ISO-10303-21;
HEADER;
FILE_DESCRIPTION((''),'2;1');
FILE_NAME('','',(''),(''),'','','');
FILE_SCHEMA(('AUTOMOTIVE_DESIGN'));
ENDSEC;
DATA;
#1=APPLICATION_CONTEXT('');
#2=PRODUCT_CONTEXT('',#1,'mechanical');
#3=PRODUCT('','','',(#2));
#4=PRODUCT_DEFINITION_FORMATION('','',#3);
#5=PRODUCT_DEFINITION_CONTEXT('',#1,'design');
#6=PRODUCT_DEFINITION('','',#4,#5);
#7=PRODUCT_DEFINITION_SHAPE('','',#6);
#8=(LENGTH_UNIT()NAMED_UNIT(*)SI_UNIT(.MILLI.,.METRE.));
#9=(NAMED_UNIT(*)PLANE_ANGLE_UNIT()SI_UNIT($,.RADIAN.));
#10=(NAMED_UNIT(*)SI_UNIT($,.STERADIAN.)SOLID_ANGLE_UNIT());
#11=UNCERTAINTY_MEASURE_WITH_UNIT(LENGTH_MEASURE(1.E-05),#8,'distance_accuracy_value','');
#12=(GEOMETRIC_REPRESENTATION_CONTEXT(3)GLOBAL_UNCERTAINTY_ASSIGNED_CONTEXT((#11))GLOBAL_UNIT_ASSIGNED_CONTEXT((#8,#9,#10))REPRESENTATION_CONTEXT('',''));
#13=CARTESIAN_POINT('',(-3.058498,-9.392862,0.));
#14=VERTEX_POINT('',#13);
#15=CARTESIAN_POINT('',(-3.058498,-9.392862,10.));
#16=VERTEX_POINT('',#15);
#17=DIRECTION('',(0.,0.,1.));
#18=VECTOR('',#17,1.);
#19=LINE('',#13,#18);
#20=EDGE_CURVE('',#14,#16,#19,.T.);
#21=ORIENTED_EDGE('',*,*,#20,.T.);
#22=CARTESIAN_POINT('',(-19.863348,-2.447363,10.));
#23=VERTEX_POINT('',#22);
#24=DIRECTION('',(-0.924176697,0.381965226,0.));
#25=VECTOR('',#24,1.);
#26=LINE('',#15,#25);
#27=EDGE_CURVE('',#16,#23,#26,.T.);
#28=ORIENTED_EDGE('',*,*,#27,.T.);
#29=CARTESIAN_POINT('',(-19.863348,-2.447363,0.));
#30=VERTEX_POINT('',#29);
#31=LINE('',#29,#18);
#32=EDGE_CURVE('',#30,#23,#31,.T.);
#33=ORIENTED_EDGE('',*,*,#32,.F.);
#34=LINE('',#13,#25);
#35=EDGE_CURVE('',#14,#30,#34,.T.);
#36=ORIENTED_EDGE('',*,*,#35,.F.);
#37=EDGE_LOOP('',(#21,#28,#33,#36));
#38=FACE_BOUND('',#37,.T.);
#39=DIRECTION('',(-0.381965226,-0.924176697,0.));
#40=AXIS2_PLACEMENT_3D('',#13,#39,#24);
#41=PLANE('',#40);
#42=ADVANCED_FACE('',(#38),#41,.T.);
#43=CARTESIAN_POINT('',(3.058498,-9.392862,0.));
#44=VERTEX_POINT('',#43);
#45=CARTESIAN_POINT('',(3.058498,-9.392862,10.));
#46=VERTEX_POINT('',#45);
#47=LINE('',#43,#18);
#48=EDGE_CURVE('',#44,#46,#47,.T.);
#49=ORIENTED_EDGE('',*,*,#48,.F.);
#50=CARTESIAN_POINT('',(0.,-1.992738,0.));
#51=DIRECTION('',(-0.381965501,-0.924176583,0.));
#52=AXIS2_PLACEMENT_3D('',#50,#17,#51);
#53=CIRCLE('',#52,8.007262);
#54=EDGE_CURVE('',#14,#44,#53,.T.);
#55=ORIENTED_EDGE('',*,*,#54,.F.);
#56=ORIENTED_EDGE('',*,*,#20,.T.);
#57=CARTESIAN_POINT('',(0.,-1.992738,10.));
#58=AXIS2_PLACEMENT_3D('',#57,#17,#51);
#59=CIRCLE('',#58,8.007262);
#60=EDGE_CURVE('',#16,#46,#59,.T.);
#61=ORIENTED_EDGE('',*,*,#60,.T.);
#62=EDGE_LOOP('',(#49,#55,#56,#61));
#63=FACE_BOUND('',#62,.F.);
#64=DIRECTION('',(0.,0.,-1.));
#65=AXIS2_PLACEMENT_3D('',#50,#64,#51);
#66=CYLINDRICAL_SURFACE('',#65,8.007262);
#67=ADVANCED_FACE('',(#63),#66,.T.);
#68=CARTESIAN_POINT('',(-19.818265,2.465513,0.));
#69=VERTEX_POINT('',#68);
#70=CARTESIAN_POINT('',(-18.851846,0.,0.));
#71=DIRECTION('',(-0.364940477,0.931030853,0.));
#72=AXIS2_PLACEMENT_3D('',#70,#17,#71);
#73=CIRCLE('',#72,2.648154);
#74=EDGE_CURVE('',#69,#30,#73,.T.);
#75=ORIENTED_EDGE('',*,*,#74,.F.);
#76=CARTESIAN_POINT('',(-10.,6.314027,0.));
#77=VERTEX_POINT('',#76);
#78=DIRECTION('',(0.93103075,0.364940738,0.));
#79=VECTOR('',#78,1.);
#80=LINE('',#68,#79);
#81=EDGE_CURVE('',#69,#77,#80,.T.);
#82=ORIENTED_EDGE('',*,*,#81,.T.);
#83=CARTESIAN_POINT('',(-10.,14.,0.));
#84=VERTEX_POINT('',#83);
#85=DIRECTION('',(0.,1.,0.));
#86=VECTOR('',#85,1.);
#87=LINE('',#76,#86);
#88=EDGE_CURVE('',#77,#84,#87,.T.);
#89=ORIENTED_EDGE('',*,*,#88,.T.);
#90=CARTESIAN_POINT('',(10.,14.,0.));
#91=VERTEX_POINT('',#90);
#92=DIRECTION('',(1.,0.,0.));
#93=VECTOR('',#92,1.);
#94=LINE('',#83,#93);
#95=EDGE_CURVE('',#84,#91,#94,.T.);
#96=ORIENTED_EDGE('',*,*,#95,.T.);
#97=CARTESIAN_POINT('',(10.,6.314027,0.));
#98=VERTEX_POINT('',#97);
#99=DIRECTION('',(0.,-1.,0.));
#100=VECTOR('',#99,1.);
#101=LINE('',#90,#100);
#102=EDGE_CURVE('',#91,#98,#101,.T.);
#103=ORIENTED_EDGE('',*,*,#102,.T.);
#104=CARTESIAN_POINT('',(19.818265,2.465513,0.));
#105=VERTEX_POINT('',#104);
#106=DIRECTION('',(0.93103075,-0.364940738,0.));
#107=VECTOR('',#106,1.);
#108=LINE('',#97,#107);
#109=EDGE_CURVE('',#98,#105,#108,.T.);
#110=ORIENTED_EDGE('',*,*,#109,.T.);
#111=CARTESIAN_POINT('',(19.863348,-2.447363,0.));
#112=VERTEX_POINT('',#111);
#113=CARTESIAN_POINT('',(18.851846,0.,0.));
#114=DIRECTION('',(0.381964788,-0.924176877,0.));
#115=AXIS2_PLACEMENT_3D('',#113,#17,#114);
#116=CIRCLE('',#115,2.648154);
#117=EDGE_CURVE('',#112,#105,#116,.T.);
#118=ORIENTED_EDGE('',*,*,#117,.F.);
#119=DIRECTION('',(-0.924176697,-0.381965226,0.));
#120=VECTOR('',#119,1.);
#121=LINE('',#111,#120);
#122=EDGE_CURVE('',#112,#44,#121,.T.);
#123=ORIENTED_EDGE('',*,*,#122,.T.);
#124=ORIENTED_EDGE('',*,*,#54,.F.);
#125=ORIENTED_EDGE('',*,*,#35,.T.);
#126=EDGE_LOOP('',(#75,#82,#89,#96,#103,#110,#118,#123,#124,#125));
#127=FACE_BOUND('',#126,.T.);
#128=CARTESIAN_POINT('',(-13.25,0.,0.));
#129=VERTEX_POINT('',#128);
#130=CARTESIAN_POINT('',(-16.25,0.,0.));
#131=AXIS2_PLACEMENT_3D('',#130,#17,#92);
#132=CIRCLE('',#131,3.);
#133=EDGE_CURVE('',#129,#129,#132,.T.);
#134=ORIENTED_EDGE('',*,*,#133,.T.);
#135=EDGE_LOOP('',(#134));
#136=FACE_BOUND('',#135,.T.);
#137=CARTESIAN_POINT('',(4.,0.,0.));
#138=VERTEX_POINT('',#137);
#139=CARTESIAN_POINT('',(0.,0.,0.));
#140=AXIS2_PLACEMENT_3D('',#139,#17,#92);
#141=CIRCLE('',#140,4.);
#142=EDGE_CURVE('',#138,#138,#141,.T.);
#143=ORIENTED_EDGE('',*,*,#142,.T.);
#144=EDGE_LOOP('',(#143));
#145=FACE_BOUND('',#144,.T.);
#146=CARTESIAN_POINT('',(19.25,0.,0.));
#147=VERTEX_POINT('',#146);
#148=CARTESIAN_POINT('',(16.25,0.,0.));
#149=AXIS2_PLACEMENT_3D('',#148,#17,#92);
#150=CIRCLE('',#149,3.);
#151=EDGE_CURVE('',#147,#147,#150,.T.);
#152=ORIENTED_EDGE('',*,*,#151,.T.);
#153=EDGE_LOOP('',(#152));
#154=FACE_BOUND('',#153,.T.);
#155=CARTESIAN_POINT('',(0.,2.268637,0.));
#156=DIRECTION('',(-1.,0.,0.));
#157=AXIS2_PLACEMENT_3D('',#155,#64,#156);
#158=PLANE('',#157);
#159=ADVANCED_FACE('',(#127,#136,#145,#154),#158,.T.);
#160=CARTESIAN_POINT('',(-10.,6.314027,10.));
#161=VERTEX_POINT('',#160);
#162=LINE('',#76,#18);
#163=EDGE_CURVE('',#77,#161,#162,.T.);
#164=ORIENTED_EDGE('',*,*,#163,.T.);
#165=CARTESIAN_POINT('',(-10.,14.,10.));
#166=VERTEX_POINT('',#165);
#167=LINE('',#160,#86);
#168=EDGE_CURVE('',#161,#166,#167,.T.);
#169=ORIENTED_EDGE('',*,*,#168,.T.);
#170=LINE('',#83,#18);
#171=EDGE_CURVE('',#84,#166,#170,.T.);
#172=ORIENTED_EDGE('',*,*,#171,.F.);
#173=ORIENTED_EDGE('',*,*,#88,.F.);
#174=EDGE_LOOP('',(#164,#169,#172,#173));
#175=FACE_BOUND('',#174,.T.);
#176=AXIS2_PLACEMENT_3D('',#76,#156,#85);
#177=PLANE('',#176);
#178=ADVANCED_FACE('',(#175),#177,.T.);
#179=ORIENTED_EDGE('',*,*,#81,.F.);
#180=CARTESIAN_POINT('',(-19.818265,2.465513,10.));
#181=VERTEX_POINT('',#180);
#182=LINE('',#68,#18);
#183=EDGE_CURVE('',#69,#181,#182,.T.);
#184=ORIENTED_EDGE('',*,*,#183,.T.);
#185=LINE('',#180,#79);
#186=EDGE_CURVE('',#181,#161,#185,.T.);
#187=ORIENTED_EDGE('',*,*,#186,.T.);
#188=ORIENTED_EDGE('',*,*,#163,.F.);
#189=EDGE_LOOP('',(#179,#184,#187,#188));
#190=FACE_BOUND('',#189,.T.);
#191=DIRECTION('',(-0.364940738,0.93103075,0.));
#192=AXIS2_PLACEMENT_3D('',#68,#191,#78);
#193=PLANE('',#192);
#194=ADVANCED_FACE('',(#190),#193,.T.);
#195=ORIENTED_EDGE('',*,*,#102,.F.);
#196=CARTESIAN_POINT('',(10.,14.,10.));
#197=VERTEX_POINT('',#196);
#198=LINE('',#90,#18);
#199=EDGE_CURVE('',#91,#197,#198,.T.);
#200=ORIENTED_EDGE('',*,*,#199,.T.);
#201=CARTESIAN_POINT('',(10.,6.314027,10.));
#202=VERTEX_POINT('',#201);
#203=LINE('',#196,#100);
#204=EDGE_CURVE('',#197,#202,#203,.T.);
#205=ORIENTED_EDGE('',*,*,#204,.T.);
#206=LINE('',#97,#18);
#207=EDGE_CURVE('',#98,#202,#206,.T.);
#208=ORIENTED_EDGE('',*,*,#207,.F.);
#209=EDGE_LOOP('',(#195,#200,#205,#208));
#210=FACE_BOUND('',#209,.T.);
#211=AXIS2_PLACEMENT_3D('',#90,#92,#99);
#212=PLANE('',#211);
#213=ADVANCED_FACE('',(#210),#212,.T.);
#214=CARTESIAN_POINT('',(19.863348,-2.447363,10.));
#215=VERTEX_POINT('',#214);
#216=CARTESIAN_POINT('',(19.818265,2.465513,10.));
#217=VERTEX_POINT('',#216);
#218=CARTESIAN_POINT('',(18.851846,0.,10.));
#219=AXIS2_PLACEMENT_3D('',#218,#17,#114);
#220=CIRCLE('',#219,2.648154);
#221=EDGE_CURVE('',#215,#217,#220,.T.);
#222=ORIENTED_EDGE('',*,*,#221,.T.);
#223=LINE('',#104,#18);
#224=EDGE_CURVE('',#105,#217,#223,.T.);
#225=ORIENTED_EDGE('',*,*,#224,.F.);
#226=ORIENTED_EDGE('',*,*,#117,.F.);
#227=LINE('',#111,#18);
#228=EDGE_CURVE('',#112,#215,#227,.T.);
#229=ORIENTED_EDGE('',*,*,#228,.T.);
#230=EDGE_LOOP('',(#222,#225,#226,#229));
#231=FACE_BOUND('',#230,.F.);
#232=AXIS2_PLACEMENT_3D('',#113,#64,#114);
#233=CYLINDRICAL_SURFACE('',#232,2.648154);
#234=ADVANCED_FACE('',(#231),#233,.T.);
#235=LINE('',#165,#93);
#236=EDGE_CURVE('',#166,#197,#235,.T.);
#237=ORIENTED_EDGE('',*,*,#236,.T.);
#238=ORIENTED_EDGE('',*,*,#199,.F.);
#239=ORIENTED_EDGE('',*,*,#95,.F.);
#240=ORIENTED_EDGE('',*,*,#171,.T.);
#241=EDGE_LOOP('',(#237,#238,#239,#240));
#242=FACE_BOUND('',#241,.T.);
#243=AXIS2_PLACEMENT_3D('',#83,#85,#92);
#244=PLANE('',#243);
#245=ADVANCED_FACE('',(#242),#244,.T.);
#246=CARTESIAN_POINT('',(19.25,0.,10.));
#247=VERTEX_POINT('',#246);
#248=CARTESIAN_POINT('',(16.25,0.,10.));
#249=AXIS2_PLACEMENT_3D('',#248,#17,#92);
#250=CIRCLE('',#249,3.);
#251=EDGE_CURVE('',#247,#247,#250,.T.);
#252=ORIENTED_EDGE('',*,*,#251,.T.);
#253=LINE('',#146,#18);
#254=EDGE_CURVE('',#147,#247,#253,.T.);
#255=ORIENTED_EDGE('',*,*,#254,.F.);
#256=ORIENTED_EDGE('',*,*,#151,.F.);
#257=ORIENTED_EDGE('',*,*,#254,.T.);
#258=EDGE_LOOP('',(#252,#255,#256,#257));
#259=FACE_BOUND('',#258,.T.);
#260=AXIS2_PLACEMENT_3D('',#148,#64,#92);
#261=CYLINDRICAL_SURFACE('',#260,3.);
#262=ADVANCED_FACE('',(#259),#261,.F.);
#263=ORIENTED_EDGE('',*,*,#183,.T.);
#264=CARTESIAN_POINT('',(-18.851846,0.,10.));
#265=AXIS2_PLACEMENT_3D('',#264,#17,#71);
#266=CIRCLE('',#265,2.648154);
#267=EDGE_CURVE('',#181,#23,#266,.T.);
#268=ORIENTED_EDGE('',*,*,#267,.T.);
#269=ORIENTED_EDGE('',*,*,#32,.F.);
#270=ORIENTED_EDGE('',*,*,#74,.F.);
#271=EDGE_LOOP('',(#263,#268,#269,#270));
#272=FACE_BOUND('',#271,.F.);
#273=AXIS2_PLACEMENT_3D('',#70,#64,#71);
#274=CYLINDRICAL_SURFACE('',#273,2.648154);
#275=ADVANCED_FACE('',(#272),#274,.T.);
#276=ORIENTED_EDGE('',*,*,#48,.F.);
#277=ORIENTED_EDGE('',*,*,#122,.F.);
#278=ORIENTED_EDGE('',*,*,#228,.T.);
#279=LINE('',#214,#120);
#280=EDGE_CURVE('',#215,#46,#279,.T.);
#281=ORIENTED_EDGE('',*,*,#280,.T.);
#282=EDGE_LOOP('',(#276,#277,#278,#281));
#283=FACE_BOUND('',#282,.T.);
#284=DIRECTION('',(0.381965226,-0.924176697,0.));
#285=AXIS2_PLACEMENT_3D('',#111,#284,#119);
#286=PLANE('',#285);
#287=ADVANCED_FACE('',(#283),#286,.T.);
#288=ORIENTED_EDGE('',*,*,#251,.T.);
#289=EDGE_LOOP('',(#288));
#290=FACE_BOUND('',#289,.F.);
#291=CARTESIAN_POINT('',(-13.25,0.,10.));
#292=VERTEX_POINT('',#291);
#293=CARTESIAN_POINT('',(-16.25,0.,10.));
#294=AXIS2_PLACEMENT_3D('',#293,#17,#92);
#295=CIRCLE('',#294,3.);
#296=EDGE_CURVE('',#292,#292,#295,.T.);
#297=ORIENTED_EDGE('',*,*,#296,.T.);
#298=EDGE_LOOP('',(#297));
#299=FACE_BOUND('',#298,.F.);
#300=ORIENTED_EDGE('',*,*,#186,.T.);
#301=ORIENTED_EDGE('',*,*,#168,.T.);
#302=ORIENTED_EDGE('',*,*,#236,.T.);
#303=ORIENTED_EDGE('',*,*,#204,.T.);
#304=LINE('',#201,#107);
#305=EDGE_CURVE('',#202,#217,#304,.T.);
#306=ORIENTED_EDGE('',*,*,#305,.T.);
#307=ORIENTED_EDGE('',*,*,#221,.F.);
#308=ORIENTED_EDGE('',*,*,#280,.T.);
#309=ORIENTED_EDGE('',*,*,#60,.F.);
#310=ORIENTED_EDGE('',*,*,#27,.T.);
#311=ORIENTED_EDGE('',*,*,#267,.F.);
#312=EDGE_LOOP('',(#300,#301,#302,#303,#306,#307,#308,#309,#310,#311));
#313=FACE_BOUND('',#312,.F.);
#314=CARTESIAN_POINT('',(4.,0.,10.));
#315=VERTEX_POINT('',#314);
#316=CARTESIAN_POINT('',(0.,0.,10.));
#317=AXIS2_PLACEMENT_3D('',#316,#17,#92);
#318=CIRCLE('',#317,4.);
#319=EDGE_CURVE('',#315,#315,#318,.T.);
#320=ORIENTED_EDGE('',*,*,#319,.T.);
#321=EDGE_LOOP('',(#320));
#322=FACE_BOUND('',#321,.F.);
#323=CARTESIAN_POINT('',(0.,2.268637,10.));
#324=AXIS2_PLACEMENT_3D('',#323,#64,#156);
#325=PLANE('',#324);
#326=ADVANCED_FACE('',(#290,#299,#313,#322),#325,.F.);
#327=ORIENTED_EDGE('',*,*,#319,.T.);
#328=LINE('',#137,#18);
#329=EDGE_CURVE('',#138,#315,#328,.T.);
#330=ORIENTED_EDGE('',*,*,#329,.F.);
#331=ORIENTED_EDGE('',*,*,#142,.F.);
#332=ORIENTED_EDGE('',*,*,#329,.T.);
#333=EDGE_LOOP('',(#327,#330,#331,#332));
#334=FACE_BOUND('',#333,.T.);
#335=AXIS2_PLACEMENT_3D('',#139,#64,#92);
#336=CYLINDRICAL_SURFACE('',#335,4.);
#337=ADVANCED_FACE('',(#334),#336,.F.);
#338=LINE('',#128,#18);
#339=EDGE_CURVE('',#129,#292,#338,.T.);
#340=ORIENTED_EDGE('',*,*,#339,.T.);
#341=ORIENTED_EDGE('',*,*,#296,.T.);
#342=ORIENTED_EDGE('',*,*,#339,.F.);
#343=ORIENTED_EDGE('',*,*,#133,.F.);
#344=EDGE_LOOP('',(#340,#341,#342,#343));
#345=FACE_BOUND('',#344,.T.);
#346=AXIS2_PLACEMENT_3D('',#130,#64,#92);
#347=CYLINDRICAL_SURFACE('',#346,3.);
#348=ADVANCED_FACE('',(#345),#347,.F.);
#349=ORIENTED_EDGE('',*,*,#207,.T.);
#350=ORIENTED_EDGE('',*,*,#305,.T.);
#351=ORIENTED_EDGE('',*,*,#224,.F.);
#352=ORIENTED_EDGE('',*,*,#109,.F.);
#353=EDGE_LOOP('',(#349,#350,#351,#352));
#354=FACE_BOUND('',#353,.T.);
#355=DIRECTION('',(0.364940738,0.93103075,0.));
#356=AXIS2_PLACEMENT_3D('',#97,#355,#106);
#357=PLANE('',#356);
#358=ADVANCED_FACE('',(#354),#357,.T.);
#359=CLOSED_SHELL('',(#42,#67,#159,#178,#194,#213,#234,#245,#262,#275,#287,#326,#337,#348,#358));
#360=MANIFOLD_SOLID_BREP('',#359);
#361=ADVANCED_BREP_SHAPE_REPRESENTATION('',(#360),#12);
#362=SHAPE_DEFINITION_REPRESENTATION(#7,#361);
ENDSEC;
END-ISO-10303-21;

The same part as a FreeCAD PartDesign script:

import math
import FreeCAD as App
import Part
import Sketcher

doc = App.newDocument("Part")
body = doc.addObject("PartDesign::Body", "Body")

sketch1 = doc.addObject("Sketcher::SketchObject", "Sketch")
body.addObject(sketch1)
sketch1.AttachmentSupport = (doc.XY_Plane, [""])
sketch1.MapMode = "FlatFace"
sketch1.addGeometry([
    Part.LineSegment(App.Vector(-10, 6.3, 0), App.Vector(-19.8, 2.5, 0)),
    Part.ArcOfCircle(Part.Circle(App.Vector(-18.9, 0, 0), App.Vector(0, 0, 1), 2.6), math.radians(111), math.radians(248)),
    Part.LineSegment(App.Vector(-19.9, -2.4, 0), App.Vector(-3.1, -9.4, 0)),
    Part.ArcOfCircle(Part.Circle(App.Vector(0, -2, 0), App.Vector(0, 0, 1), 8), math.radians(-112), math.radians(-68)),
    Part.LineSegment(App.Vector(3.1, -9.4, 0), App.Vector(19.9, -2.4, 0)),
    Part.ArcOfCircle(Part.Circle(App.Vector(18.9, 0, 0), App.Vector(0, 0, 1), 2.6), math.radians(-68), math.radians(69)),
    Part.LineSegment(App.Vector(19.8, 2.5, 0), App.Vector(10, 6.3, 0)),
    Part.LineSegment(App.Vector(10, 6.3, 0), App.Vector(10, 14, 0)),
    Part.LineSegment(App.Vector(10, 14, 0), App.Vector(-10, 14, 0)),
    Part.LineSegment(App.Vector(-10, 14, 0), App.Vector(-10, 6.3, 0)),
    Part.Circle(App.Vector(16.2, 0, 0), App.Vector(0, 0, 1), 3),
    Part.Circle(App.Vector(0, 0, 0), App.Vector(0, 0, 1), 4),
    Part.Circle(App.Vector(-16.2, 0, 0), App.Vector(0, 0, 1), 3),
], False)
sketch1.addConstraint([
    Sketcher.Constraint("Tangent", 0, 2, 1, 1),
    Sketcher.Constraint("Tangent", 1, 2, 2, 1),
    Sketcher.Constraint("Tangent", 2, 2, 3, 1),
    Sketcher.Constraint("Tangent", 3, 2, 4, 1),
    Sketcher.Constraint("Tangent", 4, 2, 5, 1),
    Sketcher.Constraint("Tangent", 5, 2, 6, 1),
    Sketcher.Constraint("Coincident", 6, 2, 7, 1),
    Sketcher.Constraint("Coincident", 7, 2, 8, 1),
    Sketcher.Constraint("Coincident", 8, 2, 9, 1),
    Sketcher.Constraint("Coincident", 9, 2, 0, 1),
    Sketcher.Constraint("Vertical", 7),
    Sketcher.Constraint("Horizontal", 8),
    Sketcher.Constraint("Vertical", 9),
    Sketcher.Constraint("Coincident", 11, 3, -1, 1),
    Sketcher.Constraint("Equal", 1, 5),
    Sketcher.Constraint("Equal", 10, 12),
    Sketcher.Constraint("Symmetric", 1, 3, 5, 3, -1, 1),
    Sketcher.Constraint("Symmetric", 10, 3, 12, 3, -1, 1),
    Sketcher.Constraint("Symmetric", 2, 2, 3, 2, -2),
    Sketcher.Constraint("Symmetric", 6, 2, 9, 2, -2),
    Sketcher.Constraint("PointOnObject", 10, 3, -1),
    Sketcher.Constraint("Diameter", 10, 6.0),
    Sketcher.Constraint("Diameter", 11, 8.0),
    Sketcher.Constraint("DistanceX", 8, 2, 8, 1, 20.0),
    Sketcher.Constraint("DistanceY", -1, 1, 7, 2, 14.0),
    Sketcher.Constraint("DistanceX", 12, 3, 10, 3, 32.5),
    Sketcher.Constraint("Radius", 1, 2.648154),
    Sketcher.Constraint("Radius", 3, 8.007262),
    Sketcher.Constraint("DistanceX", 2, 2, -1, 1, 3.058498),
    Sketcher.Constraint("DistanceY", 2, 2, 1, 2, 6.945499),
    Sketcher.Constraint("DistanceY", 7, 1, 7, 2, 7.685973),
])
pad1 = doc.addObject("PartDesign::Pad", "Pad")
body.addObject(pad1)
pad1.Profile = sketch1
pad1.Length = 10

doc.recompute()
